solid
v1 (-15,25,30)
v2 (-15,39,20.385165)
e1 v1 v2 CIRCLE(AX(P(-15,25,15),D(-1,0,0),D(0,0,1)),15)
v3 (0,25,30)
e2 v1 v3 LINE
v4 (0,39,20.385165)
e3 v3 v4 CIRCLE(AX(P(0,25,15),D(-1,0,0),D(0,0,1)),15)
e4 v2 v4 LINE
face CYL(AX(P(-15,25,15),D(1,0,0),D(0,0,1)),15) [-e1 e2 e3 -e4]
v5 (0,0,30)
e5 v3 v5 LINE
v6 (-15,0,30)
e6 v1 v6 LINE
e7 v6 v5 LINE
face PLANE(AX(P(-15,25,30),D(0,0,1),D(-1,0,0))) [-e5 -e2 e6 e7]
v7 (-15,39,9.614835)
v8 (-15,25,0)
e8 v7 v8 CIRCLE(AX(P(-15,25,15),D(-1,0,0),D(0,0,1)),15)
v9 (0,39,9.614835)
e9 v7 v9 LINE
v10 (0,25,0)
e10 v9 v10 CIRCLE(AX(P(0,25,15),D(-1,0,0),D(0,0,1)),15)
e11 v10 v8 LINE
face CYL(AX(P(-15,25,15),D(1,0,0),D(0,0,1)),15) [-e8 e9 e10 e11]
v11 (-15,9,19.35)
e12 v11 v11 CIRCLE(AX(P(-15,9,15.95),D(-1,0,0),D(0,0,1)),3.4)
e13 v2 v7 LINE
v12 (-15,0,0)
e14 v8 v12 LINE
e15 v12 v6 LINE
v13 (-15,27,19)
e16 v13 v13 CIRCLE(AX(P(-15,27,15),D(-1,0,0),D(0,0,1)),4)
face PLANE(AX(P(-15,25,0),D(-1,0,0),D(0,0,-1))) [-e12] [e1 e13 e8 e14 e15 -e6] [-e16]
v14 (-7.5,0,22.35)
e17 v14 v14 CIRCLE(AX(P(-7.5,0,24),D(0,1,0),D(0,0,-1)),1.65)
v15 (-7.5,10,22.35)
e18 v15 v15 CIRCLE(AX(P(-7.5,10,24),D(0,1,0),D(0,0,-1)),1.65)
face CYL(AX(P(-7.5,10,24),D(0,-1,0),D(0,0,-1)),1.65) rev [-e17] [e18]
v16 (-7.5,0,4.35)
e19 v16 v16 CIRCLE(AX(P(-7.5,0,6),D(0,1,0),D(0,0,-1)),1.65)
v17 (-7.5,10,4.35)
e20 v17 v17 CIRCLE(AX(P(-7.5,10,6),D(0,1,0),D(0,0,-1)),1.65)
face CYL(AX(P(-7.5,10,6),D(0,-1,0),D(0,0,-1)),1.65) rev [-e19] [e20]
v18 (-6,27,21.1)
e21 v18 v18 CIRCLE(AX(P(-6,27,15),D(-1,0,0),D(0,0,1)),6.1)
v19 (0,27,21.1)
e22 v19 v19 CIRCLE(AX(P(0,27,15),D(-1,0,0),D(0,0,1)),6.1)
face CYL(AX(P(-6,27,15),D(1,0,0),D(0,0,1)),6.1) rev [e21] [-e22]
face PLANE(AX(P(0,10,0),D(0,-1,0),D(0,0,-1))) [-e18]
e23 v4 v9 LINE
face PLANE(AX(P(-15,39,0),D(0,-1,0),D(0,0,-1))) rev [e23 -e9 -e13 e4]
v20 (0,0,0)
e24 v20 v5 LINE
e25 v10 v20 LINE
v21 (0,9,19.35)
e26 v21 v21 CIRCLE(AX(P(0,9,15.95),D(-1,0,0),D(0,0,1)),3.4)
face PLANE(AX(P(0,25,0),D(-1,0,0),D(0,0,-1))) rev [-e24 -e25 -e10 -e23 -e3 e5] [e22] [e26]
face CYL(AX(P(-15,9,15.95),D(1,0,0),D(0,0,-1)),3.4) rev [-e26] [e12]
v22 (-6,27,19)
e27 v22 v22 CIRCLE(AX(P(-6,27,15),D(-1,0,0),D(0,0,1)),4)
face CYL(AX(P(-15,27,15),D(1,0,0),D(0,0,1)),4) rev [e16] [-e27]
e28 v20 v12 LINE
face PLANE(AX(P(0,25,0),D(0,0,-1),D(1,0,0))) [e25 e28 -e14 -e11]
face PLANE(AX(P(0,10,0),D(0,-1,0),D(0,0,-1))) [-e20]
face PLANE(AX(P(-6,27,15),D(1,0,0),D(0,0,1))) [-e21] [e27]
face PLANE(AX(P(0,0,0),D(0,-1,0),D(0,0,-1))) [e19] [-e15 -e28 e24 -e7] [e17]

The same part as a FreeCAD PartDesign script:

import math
import FreeCAD as App
import Part
import Sketcher
from FreeCAD import Vector


def add_polygon(sketch, points):
    """Adds a closed chain of lines whose ends are joined by coincident constraints."""
    first, n = sketch.GeometryCount, len(points)
    for a, b in zip(points, points[1:] + points[:1]):
        sketch.addGeometry(Part.LineSegment(App.Vector(*a, 0), App.Vector(*b, 0)), False)
    for i in range(n):
        sketch.addConstraint(Sketcher.Constraint("Coincident", first + i, 2, first + (i + 1) % n, 1))

doc = App.newDocument("Part")
body = doc.addObject("PartDesign::Body", "Body")

# Sketch on XZ plane
sketch1 = body.newObject("Sketcher::SketchObject", "Sketch")
sketch1.AttachmentSupport = (doc.getObject("XZ_Plane"), [""])
sketch1.MapMode = "FlatFace"
add_polygon(sketch1, [(0, 0), (0, 30), (15, 30), (15, 0)])  # lines 0-3
sketch1.addConstraint([
    Sketcher.Constraint("Vertical", 0),
    Sketcher.Constraint("Horizontal", 1),
    Sketcher.Constraint("Vertical", 2),
    Sketcher.Constraint("Horizontal", 3),
    Sketcher.Constraint("Coincident", 3, 2, -1, 1),
    Sketcher.Constraint("DistanceX", 1, 1, 1, 2, 15.0),
    Sketcher.Constraint("DistanceY", 0, 1, 0, 2, 30.0),
])
pad1 = body.newObject("PartDesign::Pad", "Pad")
pad1.Profile = sketch1
pad1.Length = 25
pad1.Reversed = True

# Sketch on YZ plane
sketch2 = body.newObject("Sketcher::SketchObject", "Sketch001")
sketch2.AttachmentSupport = (doc.getObject("YZ_Plane"), [""])
sketch2.MapMode = "FlatFace"
sketch2.addGeometry(Part.Circle(Vector(25, 15, 0), Vector(0, 0, 1), 15), False)
sketch2.addConstraint([
    Sketcher.Constraint("Diameter", 0, 30.0),
    Sketcher.Constraint("DistanceX", -1, 1, 0, 3, 25.0),
    Sketcher.Constraint("DistanceY", -1, 1, 0, 3, 15.0),
])
pad2 = body.newObject("PartDesign::Pad", "Pad001")
pad2.Profile = sketch2
pad2.Length = 15

# Sketch on XZ plane
sketch3 = body.newObject("Sketcher::SketchObject", "Sketch002")
sketch3.AttachmentSupport = (doc.getObject("XZ_Plane"), [""])
sketch3.MapMode = "FlatFace"
sketch3.addGeometry([
    Part.ArcOfCircle(Part.Circle(Vector(7.5, 24, 0), Vector(0, 0, 1), 1.6), math.radians(0), math.radians(90)),  # 0
    Part.ArcOfCircle(Part.Circle(Vector(7.5, 24, 0), Vector(0, 0, 1), 1.6), math.radians(90), math.radians(270)),  # 1
    Part.ArcOfCircle(Part.Circle(Vector(7.5, 24, 0), Vector(0, 0, 1), 1.6), math.radians(-90), math.radians(0)),  # 2
    Part.ArcOfCircle(Part.Circle(Vector(7.5, 6, 0), Vector(0, 0, 1), 1.6), math.radians(0), math.radians(90)),  # 3
    Part.ArcOfCircle(Part.Circle(Vector(7.5, 6, 0), Vector(0, 0, 1), 1.6), math.radians(90), math.radians(270)),  # 4
    Part.ArcOfCircle(Part.Circle(Vector(7.5, 6, 0), Vector(0, 0, 1), 1.6), math.radians(-90), math.radians(0)),  # 5
], False)
sketch3.addConstraint([
    Sketcher.Constraint("Tangent", 0, 2, 1, 1),
    Sketcher.Constraint("Tangent", 1, 2, 2, 1),
    Sketcher.Constraint("Tangent", 2, 2, 0, 1),
    Sketcher.Constraint("Tangent", 3, 2, 4, 1),
    Sketcher.Constraint("Tangent", 4, 2, 5, 1),
    Sketcher.Constraint("Tangent", 5, 2, 3, 1),
    Sketcher.Constraint("Equal", 2, 3),
    Sketcher.Constraint("Horizontal", 1, 3, 2, 2),
    Sketcher.Constraint("Horizontal", 4, 3, 5, 2),
    Sketcher.Constraint("Vertical", 2, 3, 3, 3),
    Sketcher.Constraint("Vertical", 5, 3, 0, 2),
    Sketcher.Constraint("Vertical", 0, 2, 1, 2),
    Sketcher.Constraint("Vertical", 1, 2, 3, 2),
    Sketcher.Constraint("Vertical", 3, 2, 4, 2),
    Sketcher.Constraint("Radius", 0, 1.65),
    Sketcher.Constraint("DistanceY", -1, 1, 0, 3, 24.0),
    Sketcher.Constraint("DistanceY", -1, 1, 3, 3, 6.0),
    Sketcher.Constraint("DistanceX", -1, 1, 0, 3, 7.5),
])
pocket1 = body.newObject("PartDesign::Pocket", "Pocket")
pocket1.Profile = sketch3
pocket1.Length = 10

# Sketch on YZ plane
sketch4 = body.newObject("Sketcher::SketchObject", "Sketch003")
sketch4.AttachmentSupport = (doc.getObject("YZ_Plane"), [""])
sketch4.MapMode = "FlatFace"
sketch4.addGeometry(Part.Circle(Vector(27, 15, 0), Vector(0, 0, 1), 6), False)
sketch4.addConstraint([
    Sketcher.Constraint("Diameter", 0, 12.2),
    Sketcher.Constraint("DistanceX", -1, 1, 0, 3, 27.0),
    Sketcher.Constraint("DistanceY", -1, 1, 0, 3, 15.0),
])
pocket2 = body.newObject("PartDesign::Pocket", "Pocket001")
pocket2.Profile = sketch4
pocket2.Length = 6
pocket2.Reversed = True

# Sketch on YZ plane
sketch5 = body.newObject("Sketcher::SketchObject", "Sketch004")
sketch5.AttachmentSupport = (doc.getObject("YZ_Plane"), [""])
sketch5.MapMode = "FlatFace"
sketch5.AttachmentOffset = App.Placement(Vector(0, 0, 6), App.Rotation())
sketch5.addGeometry(Part.Circle(Vector(27, 15, 0), Vector(0, 0, 1), 4), False)
sketch5.addConstraint([
    Sketcher.Constraint("Diameter", 0, 8.0),
    Sketcher.Constraint("DistanceX", -1, 1, 0, 3, 27.0),
    Sketcher.Constraint("DistanceY", -1, 1, 0, 3, 15.0),
])
pocket3 = body.newObject("PartDesign::Pocket", "Pocket002")
pocket3.Profile = sketch5
pocket3.Type = "ThroughAll"
pocket3.Reversed = True
body2 = doc.addObject("PartDesign::Body", "Body001")
doc.recompute()

mirroring = doc.addObject("Part::Mirroring", "Mirroring")
mirroring.Source = body
mirroring.Base = Vector(0, 0, 0)
mirroring.Normal = Vector(1, 0, 0)
body2.BaseFeature = mirroring
doc.recompute()

# Sketch on YZ plane
sketch6 = body2.newObject("Sketcher::SketchObject", "Sketch005")
sketch6.AttachmentSupport = (doc.getObject("YZ_Plane001"), [""])
sketch6.MapMode = "FlatFace"
sketch6.addGeometry([
    Part.ArcOfCircle(Part.Circle(Vector(25, 15, 0), Vector(0, 0, 1), 15), math.radians(-21), math.radians(21)),
    Part.LineSegment(Vector(39, 20, 0), Vector(39, 10, 0)),
], False)
sketch6.addConstraint([
    Sketcher.Constraint("Coincident", 0, 1, 1, 2),
    Sketcher.Constraint("Coincident", 1, 1, 0, 2),
    Sketcher.Constraint("Vertical", 1),
    Sketcher.Constraint("Radius", 0, 15.0),
    Sketcher.Constraint("DistanceX", -1, 1, 0, 3, 25.0),
    Sketcher.Constraint("DistanceY", -1, 1, 0, 3, 15.0),
    Sketcher.Constraint("DistanceX", -1, 1, 0, 1, 39.0),
])
pocket4 = body2.newObject("PartDesign::Pocket", "Pocket003")
pocket4.Profile = sketch6
pocket4.Type = "ThroughAll"
pocket4.Midplane = True

# Sketch on YZ plane
sketch7 = body2.newObject("Sketcher::SketchObject", "Sketch006")
sketch7.AttachmentSupport = (doc.getObject("YZ_Plane001"), [""])
sketch7.MapMode = "FlatFace"
sketch7.addGeometry(Part.Circle(Vector(9, 15.9, 0), Vector(0, 0, 1), 3.4), False)
sketch7.addConstraint([
    Sketcher.Constraint("Diameter", 0, 6.8),
    Sketcher.Constraint("DistanceX", -1, 1, 0, 3, 9.0),
    Sketcher.Constraint("DistanceY", -1, 1, 0, 3, 15.95),
])
pocket5 = body2.newObject("PartDesign::Pocket", "Pocket004")
pocket5.Profile = sketch7
pocket5.Type = "ThroughAll"
body.Visibility = False
mirroring.Visibility = False

doc.recompute()
